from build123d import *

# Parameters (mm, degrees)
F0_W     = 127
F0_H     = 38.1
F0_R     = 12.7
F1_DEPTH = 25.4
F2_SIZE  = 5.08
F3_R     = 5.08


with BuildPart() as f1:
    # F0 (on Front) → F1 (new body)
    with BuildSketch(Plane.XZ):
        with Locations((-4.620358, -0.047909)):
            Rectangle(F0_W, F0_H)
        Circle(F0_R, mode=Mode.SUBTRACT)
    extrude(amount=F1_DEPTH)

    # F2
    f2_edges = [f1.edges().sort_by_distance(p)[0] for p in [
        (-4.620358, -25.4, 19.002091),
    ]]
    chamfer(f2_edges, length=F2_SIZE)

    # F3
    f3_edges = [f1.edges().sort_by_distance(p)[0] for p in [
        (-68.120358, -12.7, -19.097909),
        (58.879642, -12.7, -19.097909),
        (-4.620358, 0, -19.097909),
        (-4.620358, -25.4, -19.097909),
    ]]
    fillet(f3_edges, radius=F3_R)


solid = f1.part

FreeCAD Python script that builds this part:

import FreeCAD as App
import Part
import Sketcher
from FreeCAD import Vector
Q = App.Units.Quantity


def edges_at(feature, points):
    """Names of the edges that pass closest to the given points."""
    edges = feature.Shape.Edges
    near = lambda p: min(range(len(edges)), key=lambda i: edges[i].distToShape(Part.Vertex(*p))[0])
    return sorted({f"Edge{near(p) + 1}" for p in points})


def add_polygon(sketch, points):
    """Adds a closed chain of lines whose ends are joined by coincident constraints."""
    first, n = sketch.GeometryCount, len(points)
    for a, b in zip(points, points[1:] + points[:1]):
        sketch.addGeometry(Part.LineSegment(App.Vector(*a, 0), App.Vector(*b, 0)), False)
    for i in range(n):
        sketch.addConstraint(Sketcher.Constraint("Coincident", first + i, 2, first + (i + 1) % n, 1))

doc = App.newDocument("Part")
body = doc.addObject("PartDesign::Body", "Body")

sketch1 = doc.addObject("Sketcher::SketchObject", "Sketch")
body.addObject(sketch1)
sketch1.AttachmentSupport = (doc.XZ_Plane, [""])
sketch1.MapMode = "FlatFace"
add_polygon(sketch1, [(-68.120358, 19.002091), (-68.120358, -19.097909), (58.879642, -19.097909), (58.879642, 19.002091)])
sketch1.addGeometry(Part.Circle(Vector(0, 0, 0), Vector(0, 0, 1), 12.7), False)
sketch1.addConstraint(Sketcher.Constraint("Vertical", 0))
sketch1.addConstraint(Sketcher.Constraint("Horizontal", 1))
sketch1.addConstraint(Sketcher.Constraint("Vertical", 2))
sketch1.addConstraint(Sketcher.Constraint("Horizontal", 3))
sketch1.addConstraint(Sketcher.Constraint("Coincident", 4, 3, -1, 1))
sketch1.addConstraint(Sketcher.Constraint("Diameter", 4, Q("1 in")))
sketch1.addConstraint(Sketcher.Constraint("DistanceX", 1, 1, 1, 2, Q("5 in")))
sketch1.addConstraint(Sketcher.Constraint("DistanceY", 0, 2, 0, 1, Q("1.5 in")))
sketch1.addConstraint(Sketcher.Constraint("DistanceY", 0, 2, -1, 1, Q("19.097909 mm")))
sketch1.addConstraint(Sketcher.Constraint("DistanceX", -1, 1, 1, 2, Q("58.879642 mm")))
pad1 = doc.addObject("PartDesign::Pad", "Pad")
body.addObject(pad1)
pad1.Profile = sketch1
pad1.Length = Q("1 in")
doc.recompute()

chamfer = doc.addObject("PartDesign::Chamfer", "Chamfer")
body.addObject(chamfer)
chamfer.Base = (pad1, edges_at(pad1, [(-4.62, -25.4, 19.002)]))
chamfer.Size = Q("0.2 in")
doc.recompute()

fillet = doc.addObject("PartDesign::Fillet", "Fillet")
body.addObject(fillet)
fillet.Base = (chamfer, edges_at(chamfer, [
    (-68.12, -12.7, -19.098),
    (58.88, -12.7, -19.098),
    (-4.62, 0, -19.098),
    (-4.62, -25.4, -19.098),
]))
fillet.Radius = Q("0.2 in")

doc.recompute()
